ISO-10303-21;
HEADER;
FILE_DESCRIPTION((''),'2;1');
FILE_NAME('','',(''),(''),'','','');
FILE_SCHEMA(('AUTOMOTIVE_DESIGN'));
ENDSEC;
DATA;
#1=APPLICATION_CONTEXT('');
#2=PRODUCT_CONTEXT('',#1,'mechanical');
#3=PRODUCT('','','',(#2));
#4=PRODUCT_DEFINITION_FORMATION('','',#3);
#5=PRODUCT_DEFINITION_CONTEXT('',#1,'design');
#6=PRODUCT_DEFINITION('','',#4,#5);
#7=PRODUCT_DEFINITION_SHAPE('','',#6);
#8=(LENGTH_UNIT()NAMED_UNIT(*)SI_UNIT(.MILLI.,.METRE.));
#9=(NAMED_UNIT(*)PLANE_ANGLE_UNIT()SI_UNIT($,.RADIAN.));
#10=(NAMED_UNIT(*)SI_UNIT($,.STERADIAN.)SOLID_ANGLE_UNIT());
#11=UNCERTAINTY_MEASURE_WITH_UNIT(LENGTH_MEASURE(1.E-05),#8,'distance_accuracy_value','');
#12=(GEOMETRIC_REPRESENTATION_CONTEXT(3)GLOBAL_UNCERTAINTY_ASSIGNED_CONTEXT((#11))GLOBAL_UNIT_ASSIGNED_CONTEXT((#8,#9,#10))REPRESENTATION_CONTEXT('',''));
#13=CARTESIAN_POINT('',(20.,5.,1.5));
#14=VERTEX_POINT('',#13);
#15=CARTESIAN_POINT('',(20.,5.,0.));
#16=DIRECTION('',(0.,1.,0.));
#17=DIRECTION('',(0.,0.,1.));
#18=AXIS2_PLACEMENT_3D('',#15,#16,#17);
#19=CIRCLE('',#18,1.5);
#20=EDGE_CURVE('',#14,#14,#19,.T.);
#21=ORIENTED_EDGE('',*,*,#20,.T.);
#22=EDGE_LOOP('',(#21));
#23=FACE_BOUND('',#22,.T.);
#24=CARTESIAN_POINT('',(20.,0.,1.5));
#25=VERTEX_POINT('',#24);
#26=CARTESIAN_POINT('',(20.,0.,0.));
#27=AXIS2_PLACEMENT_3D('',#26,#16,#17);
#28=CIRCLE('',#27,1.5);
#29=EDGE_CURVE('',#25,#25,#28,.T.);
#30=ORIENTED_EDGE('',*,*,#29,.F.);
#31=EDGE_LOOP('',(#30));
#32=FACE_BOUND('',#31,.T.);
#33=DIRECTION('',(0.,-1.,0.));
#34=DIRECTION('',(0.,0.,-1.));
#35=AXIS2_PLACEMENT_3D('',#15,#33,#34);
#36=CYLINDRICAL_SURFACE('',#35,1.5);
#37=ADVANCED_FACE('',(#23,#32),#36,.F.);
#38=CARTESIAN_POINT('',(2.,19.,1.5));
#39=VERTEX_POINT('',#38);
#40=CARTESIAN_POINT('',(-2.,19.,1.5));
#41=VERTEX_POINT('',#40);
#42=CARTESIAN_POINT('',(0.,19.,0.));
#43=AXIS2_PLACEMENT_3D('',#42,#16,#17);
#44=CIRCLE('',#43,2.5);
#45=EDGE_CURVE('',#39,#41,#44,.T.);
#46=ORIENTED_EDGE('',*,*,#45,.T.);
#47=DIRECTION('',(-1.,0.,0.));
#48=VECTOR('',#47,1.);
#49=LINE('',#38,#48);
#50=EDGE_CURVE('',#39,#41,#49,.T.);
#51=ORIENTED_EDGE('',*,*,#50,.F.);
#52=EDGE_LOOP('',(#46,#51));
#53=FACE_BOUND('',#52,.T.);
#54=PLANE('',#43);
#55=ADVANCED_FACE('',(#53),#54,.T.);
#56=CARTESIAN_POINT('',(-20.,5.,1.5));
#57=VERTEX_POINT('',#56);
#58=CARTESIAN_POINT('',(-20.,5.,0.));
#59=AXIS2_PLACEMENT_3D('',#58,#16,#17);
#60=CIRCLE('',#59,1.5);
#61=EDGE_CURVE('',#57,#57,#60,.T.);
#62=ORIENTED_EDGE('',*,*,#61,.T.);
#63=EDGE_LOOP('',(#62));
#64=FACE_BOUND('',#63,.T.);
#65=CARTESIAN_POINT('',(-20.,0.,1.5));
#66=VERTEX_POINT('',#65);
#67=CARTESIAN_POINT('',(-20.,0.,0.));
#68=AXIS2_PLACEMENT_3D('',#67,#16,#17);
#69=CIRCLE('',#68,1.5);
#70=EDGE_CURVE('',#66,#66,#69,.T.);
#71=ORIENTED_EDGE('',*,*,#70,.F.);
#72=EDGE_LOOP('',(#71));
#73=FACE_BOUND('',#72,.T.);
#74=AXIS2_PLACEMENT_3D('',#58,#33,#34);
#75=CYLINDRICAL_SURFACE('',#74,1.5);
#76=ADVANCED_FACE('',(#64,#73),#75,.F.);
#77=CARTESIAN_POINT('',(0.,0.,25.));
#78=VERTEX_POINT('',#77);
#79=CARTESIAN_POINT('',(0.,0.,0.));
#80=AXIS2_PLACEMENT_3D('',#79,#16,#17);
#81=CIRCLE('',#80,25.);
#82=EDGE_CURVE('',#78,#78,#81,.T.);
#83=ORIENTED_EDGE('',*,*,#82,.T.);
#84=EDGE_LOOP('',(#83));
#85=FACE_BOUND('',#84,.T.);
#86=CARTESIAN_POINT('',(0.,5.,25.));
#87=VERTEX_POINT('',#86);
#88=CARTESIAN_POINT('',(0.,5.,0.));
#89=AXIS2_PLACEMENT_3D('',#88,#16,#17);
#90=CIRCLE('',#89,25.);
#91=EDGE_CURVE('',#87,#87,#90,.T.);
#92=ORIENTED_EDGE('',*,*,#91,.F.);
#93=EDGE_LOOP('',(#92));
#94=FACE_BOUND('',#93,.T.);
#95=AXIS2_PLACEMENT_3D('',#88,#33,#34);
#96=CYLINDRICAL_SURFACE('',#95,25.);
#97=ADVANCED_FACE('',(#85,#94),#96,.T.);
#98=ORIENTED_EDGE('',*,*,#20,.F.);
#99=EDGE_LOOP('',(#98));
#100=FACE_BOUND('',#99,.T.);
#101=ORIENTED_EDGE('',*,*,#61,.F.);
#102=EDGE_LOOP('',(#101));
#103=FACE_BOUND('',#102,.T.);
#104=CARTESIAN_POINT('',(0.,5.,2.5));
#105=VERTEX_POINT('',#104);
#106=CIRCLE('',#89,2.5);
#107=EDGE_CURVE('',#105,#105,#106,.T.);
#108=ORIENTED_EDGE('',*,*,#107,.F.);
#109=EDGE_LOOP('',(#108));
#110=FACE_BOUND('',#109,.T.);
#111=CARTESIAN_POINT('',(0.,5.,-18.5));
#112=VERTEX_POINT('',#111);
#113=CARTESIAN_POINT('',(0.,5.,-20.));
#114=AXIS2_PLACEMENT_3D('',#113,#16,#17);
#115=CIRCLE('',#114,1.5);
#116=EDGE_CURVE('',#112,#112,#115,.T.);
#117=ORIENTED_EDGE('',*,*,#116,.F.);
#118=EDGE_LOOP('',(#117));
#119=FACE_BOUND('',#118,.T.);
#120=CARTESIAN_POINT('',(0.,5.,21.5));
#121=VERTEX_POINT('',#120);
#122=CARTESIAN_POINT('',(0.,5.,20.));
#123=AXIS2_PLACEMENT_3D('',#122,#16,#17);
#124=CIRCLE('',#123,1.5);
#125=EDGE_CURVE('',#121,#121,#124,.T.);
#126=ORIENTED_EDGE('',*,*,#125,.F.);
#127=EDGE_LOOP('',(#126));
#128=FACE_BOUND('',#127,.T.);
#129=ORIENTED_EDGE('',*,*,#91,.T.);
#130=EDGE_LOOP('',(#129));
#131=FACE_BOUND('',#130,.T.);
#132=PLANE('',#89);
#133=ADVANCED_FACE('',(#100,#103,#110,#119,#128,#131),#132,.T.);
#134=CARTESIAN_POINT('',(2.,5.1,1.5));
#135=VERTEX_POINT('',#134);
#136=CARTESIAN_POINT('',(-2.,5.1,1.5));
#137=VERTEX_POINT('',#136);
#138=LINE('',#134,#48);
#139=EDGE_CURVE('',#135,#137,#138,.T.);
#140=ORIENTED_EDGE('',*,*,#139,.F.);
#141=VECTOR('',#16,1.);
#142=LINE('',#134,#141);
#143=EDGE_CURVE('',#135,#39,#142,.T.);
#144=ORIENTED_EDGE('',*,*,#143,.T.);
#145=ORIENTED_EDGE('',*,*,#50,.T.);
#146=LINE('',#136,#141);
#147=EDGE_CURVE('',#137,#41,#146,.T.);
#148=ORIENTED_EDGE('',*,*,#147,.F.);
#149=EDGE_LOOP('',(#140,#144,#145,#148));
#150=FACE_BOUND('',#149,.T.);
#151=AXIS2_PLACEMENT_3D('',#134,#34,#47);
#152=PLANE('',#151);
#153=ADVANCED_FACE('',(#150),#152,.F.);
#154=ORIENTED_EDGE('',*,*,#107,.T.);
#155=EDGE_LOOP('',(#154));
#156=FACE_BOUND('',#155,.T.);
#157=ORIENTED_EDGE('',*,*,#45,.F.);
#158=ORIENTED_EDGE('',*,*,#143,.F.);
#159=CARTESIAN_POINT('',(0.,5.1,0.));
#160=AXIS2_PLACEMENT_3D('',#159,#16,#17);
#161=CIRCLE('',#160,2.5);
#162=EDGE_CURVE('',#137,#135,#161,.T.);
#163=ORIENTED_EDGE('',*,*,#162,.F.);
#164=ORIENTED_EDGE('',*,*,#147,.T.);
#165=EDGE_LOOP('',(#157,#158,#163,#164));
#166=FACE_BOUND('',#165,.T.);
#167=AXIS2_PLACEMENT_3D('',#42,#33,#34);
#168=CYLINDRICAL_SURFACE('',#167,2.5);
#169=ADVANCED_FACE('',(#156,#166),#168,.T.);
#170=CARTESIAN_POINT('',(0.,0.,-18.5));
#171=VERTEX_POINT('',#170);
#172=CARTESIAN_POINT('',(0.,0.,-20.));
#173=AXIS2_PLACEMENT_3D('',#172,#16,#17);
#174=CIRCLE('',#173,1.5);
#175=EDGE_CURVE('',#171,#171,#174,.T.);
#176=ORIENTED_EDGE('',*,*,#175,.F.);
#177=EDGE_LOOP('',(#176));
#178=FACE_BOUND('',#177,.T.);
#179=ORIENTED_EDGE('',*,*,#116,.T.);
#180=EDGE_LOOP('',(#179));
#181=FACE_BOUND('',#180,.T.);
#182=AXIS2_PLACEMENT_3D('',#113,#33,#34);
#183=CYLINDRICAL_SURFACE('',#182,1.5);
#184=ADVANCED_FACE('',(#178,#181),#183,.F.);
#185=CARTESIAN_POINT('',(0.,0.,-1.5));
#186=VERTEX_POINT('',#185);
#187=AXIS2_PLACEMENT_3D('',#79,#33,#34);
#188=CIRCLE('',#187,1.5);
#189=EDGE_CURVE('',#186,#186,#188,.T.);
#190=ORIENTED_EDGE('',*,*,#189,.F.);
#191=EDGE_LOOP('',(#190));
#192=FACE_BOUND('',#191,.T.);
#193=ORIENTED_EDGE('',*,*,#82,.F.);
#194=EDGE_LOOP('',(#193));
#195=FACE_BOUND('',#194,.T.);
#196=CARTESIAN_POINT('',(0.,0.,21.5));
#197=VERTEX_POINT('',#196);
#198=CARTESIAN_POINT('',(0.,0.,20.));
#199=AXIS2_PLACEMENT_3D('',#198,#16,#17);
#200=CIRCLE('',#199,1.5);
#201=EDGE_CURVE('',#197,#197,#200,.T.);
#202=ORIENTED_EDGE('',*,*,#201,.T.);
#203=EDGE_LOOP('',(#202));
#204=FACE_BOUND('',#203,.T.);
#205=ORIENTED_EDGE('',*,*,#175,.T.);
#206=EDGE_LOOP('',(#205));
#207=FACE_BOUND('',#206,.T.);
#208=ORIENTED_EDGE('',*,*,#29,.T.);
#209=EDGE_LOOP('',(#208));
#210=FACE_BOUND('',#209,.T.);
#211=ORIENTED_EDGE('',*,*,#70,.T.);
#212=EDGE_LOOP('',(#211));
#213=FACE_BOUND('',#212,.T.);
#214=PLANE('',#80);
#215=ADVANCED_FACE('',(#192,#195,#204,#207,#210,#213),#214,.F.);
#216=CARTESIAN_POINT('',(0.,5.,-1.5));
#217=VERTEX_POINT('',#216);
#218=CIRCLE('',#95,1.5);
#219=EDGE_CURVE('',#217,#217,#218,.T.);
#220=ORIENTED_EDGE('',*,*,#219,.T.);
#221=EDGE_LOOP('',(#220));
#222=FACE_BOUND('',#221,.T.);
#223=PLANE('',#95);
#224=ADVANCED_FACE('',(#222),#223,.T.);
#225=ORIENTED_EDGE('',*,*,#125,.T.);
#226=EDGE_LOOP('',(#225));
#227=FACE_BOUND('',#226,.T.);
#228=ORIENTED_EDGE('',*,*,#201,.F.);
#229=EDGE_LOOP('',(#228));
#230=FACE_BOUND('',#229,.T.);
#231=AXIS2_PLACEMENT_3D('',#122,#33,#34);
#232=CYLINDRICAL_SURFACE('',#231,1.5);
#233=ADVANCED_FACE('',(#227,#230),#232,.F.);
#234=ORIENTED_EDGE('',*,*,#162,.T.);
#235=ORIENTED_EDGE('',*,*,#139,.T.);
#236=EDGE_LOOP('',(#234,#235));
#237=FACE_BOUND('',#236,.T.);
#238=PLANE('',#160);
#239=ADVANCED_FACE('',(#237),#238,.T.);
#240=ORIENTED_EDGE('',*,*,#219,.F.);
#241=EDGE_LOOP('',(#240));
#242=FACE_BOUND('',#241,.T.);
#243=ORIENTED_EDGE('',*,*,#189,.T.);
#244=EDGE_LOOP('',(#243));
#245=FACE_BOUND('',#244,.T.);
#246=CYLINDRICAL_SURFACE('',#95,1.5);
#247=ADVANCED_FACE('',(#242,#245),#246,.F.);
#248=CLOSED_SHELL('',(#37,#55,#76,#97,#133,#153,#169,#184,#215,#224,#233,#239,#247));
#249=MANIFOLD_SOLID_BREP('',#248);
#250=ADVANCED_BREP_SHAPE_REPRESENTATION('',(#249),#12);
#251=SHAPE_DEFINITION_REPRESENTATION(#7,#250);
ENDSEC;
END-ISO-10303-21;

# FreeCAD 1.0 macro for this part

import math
import FreeCAD as App
import Part
import Sketcher

doc = App.newDocument("Part")
params = doc.addObject("Spreadsheet::Sheet", "Params")
for row, (alias, value) in enumerate([
    ("sketch1_diameter", "50 mm"),
    ("sketch1_diameter2", "3 mm"),
    ("pad1_length", "5 mm"),
    ("sketch2_diameter", "5 mm"),
    ("pad2_length", "14 mm"),
    ("sketch3_diameter", "3 mm"),
    ("pocket1_length", "5 mm"),
    ("sketch4_radius", "2.5 mm"),
    ("sketch4_width", "4 mm"),
    ("pocket2_length", "13.9 mm"),
], start=1):
    params.set(f"A{row}", alias)
    params.set(f"B{row}", "=" + value)
    params.setAlias(f"B{row}", alias)

body = doc.addObject("PartDesign::Body", "Body")

sketch1 = doc.addObject("Sketcher::SketchObject", "Sketch")
body.addObject(sketch1)
sketch1.AttachmentSupport = (doc.XZ_Plane, [""])
sketch1.MapMode = "FlatFace"
sketch1.addGeometry(Part.Circle(App.Vector(0, 0, 0), App.Vector(0, 0, 1), 25), False)
sketch1.addGeometry(Part.Circle(App.Vector(0, -20, 0), App.Vector(0, 0, 1), 1.5), False)
sketch1.addGeometry(Part.Circle(App.Vector(-20, 0, 0), App.Vector(0, 0, 1), 1.5), False)
sketch1.addGeometry(Part.Circle(App.Vector(20, 0, 0), App.Vector(0, 0, 1), 1.5), False)
sketch1.addGeometry(Part.Circle(App.Vector(0, 20, 0), App.Vector(0, 0, 1), 1.5), False)
sketch1.addConstraint(Sketcher.Constraint("Coincident", 0, 3, -1, 1))
sketch1.addConstraint(Sketcher.Constraint("Equal", 1, 2))
sketch1.addConstraint(Sketcher.Constraint("Equal", 2, 3))
sketch1.addConstraint(Sketcher.Constraint("Equal", 3, 4))
sketch1.addConstraint(Sketcher.Constraint("Symmetric", 2, 3, 3, 3, -1, 1))
sketch1.addConstraint(Sketcher.Constraint("Symmetric", 1, 3, 4, 3, -1, 1))
sketch1.addConstraint(Sketcher.Constraint("PointOnObject", 1, 3, -2))
sketch1.addConstraint(Sketcher.Constraint("PointOnObject", 2, 3, -1))
sketch1.addConstraint(Sketcher.Constraint("Diameter", 0, 50.0))
sketch1.addConstraint(Sketcher.Constraint("Diameter", 1, 3.0))
sketch1.addConstraint(Sketcher.Constraint("DistanceY", 1, 3, -1, 1, 20.0))
sketch1.addConstraint(Sketcher.Constraint("DistanceX", 2, 3, -1, 1, 20.0))
sketch1.setExpression("Constraints[8]", "Params.sketch1_diameter")
sketch1.setExpression("Constraints[9]", "Params.sketch1_diameter2")
pad1 = doc.addObject("PartDesign::Pad", "Pad")
body.addObject(pad1)
pad1.Profile = sketch1
pad1.setExpression("Length", "Params.pad1_length")
pad1.Reversed = True

sketch2 = doc.addObject("Sketcher::SketchObject", "Sketch001")
body.addObject(sketch2)
sketch2.AttachmentSupport = (doc.XZ_Plane, [""])
sketch2.MapMode = "FlatFace"
sketch2.AttachmentOffset = App.Placement(App.Vector(0, 0, -5), App.Rotation())
sketch2.addGeometry(Part.Circle(App.Vector(0, 0, 0), App.Vector(0, 0, 1), 2.5), False)
sketch2.addConstraint(Sketcher.Constraint("Coincident", 0, 3, -1, 1))
sketch2.addConstraint(Sketcher.Constraint("Diameter", 0, 5.0))
sketch2.setExpression("Constraints[1]", "Params.sketch2_diameter")
pad2 = doc.addObject("PartDesign::Pad", "Pad001")
body.addObject(pad2)
pad2.Profile = sketch2
pad2.setExpression("Length", "Params.pad2_length")
pad2.Reversed = True

sketch3 = doc.addObject("Sketcher::SketchObject", "Sketch002")
body.addObject(sketch3)
sketch3.AttachmentSupport = (doc.XZ_Plane, [""])
sketch3.MapMode = "FlatFace"
sketch3.addGeometry(Part.Circle(App.Vector(0, 0, 0), App.Vector(0, 0, 1), 1.5), False)
sketch3.addConstraint(Sketcher.Constraint("Coincident", 0, 3, -1, 1))
sketch3.addConstraint(Sketcher.Constraint("Diameter", 0, 3.0))
sketch3.setExpression("Constraints[1]", "Params.sketch3_diameter")
pocket1 = doc.addObject("PartDesign::Pocket", "Pocket")
body.addObject(pocket1)
pocket1.Profile = sketch3
pocket1.setExpression("Length", "Params.pocket1_length")

sketch4 = doc.addObject("Sketcher::SketchObject", "Sketch003")
body.addObject(sketch4)
sketch4.AttachmentSupport = (doc.XZ_Plane, [""])
sketch4.MapMode = "FlatFace"
sketch4.AttachmentOffset = App.Placement(App.Vector(0, 0, -5.1), App.Rotation())
sketch4.addGeometry(Part.LineSegment(App.Vector(2, 1.5, 0), App.Vector(-2, 1.5, 0)), False)
sketch4.addGeometry(Part.ArcOfCircle(Part.Circle(App.Vector(0, 0, 0), App.Vector(0, 0, 1), 2.5), math.radians(37), math.radians(143)), False)
sketch4.addConstraint(Sketcher.Constraint("Coincident", 0, 1, 1, 1))
sketch4.addConstraint(Sketcher.Constraint("Coincident", 1, 2, 0, 2))
sketch4.addConstraint(Sketcher.Constraint("Horizontal", 0))
sketch4.addConstraint(Sketcher.Constraint("Coincident", 1, 3, -1, 1))
sketch4.addConstraint(Sketcher.Constraint("Radius", 1, 2.5))
sketch4.addConstraint(Sketcher.Constraint("DistanceX", 0, 2, 0, 1, 4.0))
sketch4.setExpression("Constraints[4]", "Params.sketch4_radius")
sketch4.setExpression("Constraints[5]", "Params.sketch4_width")
pocket2 = doc.addObject("PartDesign::Pocket", "Pocket001")
body.addObject(pocket2)
pocket2.Profile = sketch4
pocket2.setExpression("Length", "Params.pocket2_length")

doc.recompute()
